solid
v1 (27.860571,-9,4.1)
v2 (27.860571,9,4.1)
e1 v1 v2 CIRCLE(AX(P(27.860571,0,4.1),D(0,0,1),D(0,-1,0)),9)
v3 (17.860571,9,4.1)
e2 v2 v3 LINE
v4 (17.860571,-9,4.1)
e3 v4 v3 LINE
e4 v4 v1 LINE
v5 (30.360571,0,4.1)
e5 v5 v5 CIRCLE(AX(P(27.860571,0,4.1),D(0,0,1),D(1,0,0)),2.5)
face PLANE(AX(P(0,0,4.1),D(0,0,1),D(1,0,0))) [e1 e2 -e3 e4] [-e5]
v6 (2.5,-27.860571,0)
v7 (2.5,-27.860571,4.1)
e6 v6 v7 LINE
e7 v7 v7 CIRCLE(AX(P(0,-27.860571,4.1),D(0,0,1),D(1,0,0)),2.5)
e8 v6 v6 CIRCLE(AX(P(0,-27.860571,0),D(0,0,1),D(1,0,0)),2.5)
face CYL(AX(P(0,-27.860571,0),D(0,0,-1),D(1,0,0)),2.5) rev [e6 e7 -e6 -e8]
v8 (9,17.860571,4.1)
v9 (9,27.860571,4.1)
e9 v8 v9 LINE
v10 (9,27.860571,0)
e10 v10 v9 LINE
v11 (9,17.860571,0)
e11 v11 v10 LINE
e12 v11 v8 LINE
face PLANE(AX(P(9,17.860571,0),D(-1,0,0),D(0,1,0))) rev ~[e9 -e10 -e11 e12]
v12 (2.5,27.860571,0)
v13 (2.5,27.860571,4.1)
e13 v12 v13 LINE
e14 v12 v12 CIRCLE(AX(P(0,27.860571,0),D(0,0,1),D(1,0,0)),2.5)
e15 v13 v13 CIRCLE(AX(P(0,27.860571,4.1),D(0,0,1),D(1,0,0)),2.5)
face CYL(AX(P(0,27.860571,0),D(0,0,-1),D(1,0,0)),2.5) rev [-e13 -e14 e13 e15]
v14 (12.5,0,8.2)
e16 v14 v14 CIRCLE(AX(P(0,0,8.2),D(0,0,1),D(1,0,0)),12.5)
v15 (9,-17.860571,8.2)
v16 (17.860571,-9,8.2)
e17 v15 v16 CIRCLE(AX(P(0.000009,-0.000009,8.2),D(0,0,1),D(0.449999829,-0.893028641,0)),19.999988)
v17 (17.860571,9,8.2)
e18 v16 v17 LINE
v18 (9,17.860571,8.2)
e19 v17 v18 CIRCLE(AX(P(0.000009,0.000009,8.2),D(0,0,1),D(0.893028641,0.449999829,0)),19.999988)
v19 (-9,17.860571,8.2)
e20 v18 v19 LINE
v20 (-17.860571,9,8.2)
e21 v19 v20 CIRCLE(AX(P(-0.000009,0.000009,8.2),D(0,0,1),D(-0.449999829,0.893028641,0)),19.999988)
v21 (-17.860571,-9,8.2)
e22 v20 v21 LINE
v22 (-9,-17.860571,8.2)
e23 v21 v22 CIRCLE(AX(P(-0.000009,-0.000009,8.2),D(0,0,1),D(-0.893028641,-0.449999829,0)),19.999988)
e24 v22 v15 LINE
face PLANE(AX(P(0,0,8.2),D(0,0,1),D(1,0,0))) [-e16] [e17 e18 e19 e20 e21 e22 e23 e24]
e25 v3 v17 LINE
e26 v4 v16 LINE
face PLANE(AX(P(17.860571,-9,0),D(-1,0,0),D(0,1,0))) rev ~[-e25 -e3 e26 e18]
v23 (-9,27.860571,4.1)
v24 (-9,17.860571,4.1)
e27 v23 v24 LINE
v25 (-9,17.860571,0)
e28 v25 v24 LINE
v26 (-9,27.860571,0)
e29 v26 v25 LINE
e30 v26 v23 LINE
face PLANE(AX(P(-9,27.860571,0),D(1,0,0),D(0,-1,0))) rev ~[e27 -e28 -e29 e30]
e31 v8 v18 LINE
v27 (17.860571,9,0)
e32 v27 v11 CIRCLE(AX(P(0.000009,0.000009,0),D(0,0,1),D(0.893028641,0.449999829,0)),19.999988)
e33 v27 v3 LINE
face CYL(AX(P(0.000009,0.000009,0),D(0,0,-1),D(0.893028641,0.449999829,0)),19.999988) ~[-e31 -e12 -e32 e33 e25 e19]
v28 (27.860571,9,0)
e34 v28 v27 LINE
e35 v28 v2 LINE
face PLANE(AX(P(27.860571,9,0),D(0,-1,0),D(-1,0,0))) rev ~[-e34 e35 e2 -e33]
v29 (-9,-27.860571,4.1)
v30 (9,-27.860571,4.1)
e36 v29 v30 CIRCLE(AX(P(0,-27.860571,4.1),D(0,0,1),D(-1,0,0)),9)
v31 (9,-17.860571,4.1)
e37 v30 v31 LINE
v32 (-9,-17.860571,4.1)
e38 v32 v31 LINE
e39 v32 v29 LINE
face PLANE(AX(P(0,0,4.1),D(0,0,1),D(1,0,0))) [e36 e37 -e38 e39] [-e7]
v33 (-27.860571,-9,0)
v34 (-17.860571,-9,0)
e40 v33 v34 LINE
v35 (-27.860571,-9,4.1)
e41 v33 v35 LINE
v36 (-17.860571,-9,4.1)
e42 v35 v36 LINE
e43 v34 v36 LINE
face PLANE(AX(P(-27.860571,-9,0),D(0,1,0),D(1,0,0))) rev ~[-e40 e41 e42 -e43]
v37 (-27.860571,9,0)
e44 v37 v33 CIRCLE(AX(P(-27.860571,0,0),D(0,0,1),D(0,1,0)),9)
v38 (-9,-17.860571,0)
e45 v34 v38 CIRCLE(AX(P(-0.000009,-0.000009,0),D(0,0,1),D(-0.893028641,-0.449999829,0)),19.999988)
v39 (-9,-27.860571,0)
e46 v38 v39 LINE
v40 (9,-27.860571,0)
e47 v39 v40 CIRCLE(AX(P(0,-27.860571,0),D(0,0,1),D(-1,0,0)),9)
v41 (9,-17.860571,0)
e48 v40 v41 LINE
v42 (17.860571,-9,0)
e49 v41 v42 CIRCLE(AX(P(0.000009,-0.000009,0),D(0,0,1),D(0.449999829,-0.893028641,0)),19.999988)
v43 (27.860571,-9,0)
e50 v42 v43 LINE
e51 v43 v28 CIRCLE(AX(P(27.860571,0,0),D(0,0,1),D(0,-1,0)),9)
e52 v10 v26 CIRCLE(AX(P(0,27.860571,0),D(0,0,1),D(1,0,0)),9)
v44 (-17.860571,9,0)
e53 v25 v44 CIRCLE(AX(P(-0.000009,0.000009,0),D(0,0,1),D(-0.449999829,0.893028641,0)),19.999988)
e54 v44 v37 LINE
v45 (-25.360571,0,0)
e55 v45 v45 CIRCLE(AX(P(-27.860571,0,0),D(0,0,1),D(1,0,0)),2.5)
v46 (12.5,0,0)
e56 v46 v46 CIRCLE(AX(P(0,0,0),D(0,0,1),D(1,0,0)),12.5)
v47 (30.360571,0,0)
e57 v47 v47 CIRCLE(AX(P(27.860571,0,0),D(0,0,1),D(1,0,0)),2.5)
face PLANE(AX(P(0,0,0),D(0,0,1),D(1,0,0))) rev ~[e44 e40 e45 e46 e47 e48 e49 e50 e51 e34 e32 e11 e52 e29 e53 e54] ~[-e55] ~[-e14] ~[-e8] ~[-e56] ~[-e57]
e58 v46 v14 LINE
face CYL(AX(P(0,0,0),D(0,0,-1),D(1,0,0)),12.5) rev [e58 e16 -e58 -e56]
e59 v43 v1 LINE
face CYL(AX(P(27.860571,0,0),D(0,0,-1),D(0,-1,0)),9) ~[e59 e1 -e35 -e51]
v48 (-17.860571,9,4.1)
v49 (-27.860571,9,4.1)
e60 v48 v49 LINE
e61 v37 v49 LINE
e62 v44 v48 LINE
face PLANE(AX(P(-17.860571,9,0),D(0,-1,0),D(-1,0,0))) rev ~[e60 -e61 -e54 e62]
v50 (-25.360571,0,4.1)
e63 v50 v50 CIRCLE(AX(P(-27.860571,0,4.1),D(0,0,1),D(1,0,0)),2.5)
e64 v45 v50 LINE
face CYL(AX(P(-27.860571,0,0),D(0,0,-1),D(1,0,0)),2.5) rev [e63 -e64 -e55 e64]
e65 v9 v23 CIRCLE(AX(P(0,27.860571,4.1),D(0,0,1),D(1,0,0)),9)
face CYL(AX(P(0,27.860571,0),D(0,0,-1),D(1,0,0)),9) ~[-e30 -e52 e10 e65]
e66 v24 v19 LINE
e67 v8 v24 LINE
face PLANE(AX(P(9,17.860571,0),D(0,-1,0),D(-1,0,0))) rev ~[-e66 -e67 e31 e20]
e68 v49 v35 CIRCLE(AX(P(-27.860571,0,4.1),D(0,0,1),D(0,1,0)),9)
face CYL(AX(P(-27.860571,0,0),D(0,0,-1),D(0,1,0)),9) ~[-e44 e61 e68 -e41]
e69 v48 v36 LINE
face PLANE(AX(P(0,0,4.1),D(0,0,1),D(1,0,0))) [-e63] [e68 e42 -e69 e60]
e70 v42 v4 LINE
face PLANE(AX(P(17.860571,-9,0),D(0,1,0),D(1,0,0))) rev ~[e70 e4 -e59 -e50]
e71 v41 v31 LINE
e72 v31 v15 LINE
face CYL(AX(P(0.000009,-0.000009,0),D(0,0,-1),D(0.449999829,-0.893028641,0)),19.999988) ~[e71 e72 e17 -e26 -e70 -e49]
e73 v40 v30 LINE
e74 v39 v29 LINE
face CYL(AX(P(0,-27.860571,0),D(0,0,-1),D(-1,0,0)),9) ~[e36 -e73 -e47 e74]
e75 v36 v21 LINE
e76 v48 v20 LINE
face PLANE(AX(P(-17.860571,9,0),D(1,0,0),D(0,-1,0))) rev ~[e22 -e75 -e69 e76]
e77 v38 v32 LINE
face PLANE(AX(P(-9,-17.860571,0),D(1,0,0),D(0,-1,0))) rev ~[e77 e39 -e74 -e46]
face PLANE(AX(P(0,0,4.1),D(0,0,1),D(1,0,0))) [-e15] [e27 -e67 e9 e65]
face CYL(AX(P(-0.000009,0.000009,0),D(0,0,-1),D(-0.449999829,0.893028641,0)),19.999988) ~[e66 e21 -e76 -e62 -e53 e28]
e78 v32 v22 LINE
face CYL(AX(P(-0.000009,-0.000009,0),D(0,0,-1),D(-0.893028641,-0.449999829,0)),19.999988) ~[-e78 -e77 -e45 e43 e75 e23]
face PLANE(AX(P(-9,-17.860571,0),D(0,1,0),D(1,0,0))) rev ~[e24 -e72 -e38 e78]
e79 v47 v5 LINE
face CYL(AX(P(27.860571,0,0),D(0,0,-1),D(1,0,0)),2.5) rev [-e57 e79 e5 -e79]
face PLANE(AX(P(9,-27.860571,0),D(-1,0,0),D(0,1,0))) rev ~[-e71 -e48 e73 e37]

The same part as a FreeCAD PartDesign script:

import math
import FreeCAD as App
import Part
import Sketcher

V = App.Vector

doc = App.newDocument("Part")
body = doc.addObject("PartDesign::Body", "Body")

sketch1 = doc.addObject("Sketcher::SketchObject", "Sketch")
body.addObject(sketch1)
sketch1.AttachmentSupport = (doc.XY_Plane, [""])
sketch1.MapMode = "FlatFace"
sketch1.addGeometry(Part.LineSegment(V(-9, -18, 0), V(9, -18, 0)), False)
sketch1.addGeometry(Part.ArcOfCircle(Part.Circle(V(0, 0, 0), V(0, 0, 1), 20), math.radians(-63), math.radians(-27)), False)
sketch1.addGeometry(Part.LineSegment(V(18, -9, 0), V(18, 9, 0)), False)
sketch1.addGeometry(Part.ArcOfCircle(Part.Circle(V(0, 0, 0), V(0, 0, 1), 20), math.radians(27), math.radians(63)), False)
sketch1.addGeometry(Part.LineSegment(V(9, 18, 0), V(-9, 18, 0)), False)
sketch1.addGeometry(Part.ArcOfCircle(Part.Circle(V(0, 0, 0), V(0, 0, 1), 20), math.radians(117), math.radians(153)), False)
sketch1.addGeometry(Part.LineSegment(V(-18, 9, 0), V(-18, -9, 0)), False)
sketch1.addGeometry(Part.ArcOfCircle(Part.Circle(V(0, 0, 0), V(0, 0, 1), 20), math.radians(-153), math.radians(-117)), False)
sketch1.addGeometry(Part.Circle(V(0, 0, 0), V(0, 0, 1), 12), False)
sketch1.addConstraint(Sketcher.Constraint("Coincident", 0, 2, 1, 1))
sketch1.addConstraint(Sketcher.Constraint("Coincident", 1, 2, 2, 1))
sketch1.addConstraint(Sketcher.Constraint("Coincident", 2, 2, 3, 1))
sketch1.addConstraint(Sketcher.Constraint("Coincident", 3, 2, 4, 1))
sketch1.addConstraint(Sketcher.Constraint("Coincident", 4, 2, 5, 1))
sketch1.addConstraint(Sketcher.Constraint("Coincident", 5, 2, 6, 1))
sketch1.addConstraint(Sketcher.Constraint("Coincident", 6, 2, 7, 1))
sketch1.addConstraint(Sketcher.Constraint("Coincident", 7, 2, 0, 1))
sketch1.addConstraint(Sketcher.Constraint("Horizontal", 0))
sketch1.addConstraint(Sketcher.Constraint("Vertical", 2))
sketch1.addConstraint(Sketcher.Constraint("Horizontal", 4))
sketch1.addConstraint(Sketcher.Constraint("Vertical", 6))
sketch1.addConstraint(Sketcher.Constraint("Coincident", 8, 3, -1, 1))
sketch1.addConstraint(Sketcher.Constraint("Equal", 1, 3))
sketch1.addConstraint(Sketcher.Constraint("Equal", 3, 5))
sketch1.addConstraint(Sketcher.Constraint("Equal", 5, 7))
sketch1.addConstraint(Sketcher.Constraint("Symmetric", 1, 3, 5, 3, -1, 1))
sketch1.addConstraint(Sketcher.Constraint("Symmetric", 3, 3, 7, 3, -1, 1))
sketch1.addConstraint(Sketcher.Constraint("Symmetric", 3, 3, 5, 3, -2))
sketch1.addConstraint(Sketcher.Constraint("Horizontal", 2, 2, 5, 2))
sketch1.addConstraint(Sketcher.Constraint("Vertical", 0, 2, 3, 2))
sketch1.addConstraint(Sketcher.Constraint("Equal", 4, 2))
sketch1.addConstraint(Sketcher.Constraint("Diameter", 8, 25.0))
sketch1.addConstraint(Sketcher.Constraint("DistanceX", 0, 1, 0, 2, 18.0))
sketch1.addConstraint(Sketcher.Constraint("Radius", 1, 19.999988))
sketch1.addConstraint(Sketcher.Constraint("DistanceY", 0, 2, -1, 1, 17.860571))
sketch1.addConstraint(Sketcher.Constraint("DistanceX", -1, 1, 1, 2, 17.860571))
pad1 = doc.addObject("PartDesign::Pad", "Pad")
body.addObject(pad1)
pad1.Profile = sketch1
pad1.Length = 8.2

sketch2 = doc.addObject("Sketcher::SketchObject", "Sketch001")
body.addObject(sketch2)
sketch2.AttachmentSupport = (doc.XY_Plane, [""])
sketch2.MapMode = "FlatFace"
sketch2.addGeometry(Part.ArcOfCircle(Part.Circle(V(0, 0, 0), V(0, 0, 1), 20), math.radians(-153), math.radians(-117)), False)
sketch2.addGeometry(Part.LineSegment(V(-9, -17.9, 0), V(-9, -27.9, 0)), False)
sketch2.addGeometry(Part.ArcOfCircle(Part.Circle(V(0, -27.9, 0), V(0, 0, 1), 9), math.radians(180), math.radians(360)), False)
sketch2.addGeometry(Part.LineSegment(V(9, -27.9, 0), V(9, -17.9, 0)), False)
sketch2.addGeometry(Part.ArcOfCircle(Part.Circle(V(0, 0, 0), V(0, 0, 1), 20), math.radians(-63), math.radians(-27)), False)
sketch2.addGeometry(Part.LineSegment(V(17.9, -9, 0), V(27.9, -9, 0)), False)
sketch2.addGeometry(Part.ArcOfCircle(Part.Circle(V(27.9, 0, 0), V(0, 0, 1), 9), math.radians(-90), math.radians(90)), False)
sketch2.addGeometry(Part.LineSegment(V(27.9, 9, 0), V(17.9, 9, 0)), False)
sketch2.addGeometry(Part.ArcOfCircle(Part.Circle(V(0, 0, 0), V(0, 0, 1), 20), math.radians(27), math.radians(63)), False)
sketch2.addGeometry(Part.LineSegment(V(9, 17.9, 0), V(9, 27.9, 0)), False)
sketch2.addGeometry(Part.ArcOfCircle(Part.Circle(V(0, 27.9, 0), V(0, 0, 1), 9), math.radians(0), math.radians(180)), False)
sketch2.addGeometry(Part.LineSegment(V(-9, 27.9, 0), V(-9, 17.9, 0)), False)
sketch2.addGeometry(Part.ArcOfCircle(Part.Circle(V(0, 0, 0), V(0, 0, 1), 20), math.radians(117), math.radians(153)), False)
sketch2.addGeometry(Part.LineSegment(V(-17.9, 9, 0), V(-27.9, 9, 0)), False)
sketch2.addGeometry(Part.ArcOfCircle(Part.Circle(V(-27.9, 0, 0), V(0, 0, 1), 9), math.radians(90), math.radians(270)), False)
sketch2.addGeometry(Part.LineSegment(V(-27.9, -9, 0), V(-17.9, -9, 0)), False)
sketch2.addGeometry(Part.Circle(V(0, -27.9, 0), V(0, 0, 1), 2.5), False)
sketch2.addGeometry(Part.Circle(V(-27.9, 0, 0), V(0, 0, 1), 2.5), False)
sketch2.addGeometry(Part.Circle(V(0, 0, 0), V(0, 0, 1), 12.5), False)
sketch2.addGeometry(Part.Circle(V(27.9, 0, 0), V(0, 0, 1), 2.5), False)
sketch2.addGeometry(Part.Circle(V(0, 27.9, 0), V(0, 0, 1), 2.5), False)
sketch2.addConstraint(Sketcher.Constraint("Coincident", 0, 2, 1, 1))
sketch2.addConstraint(Sketcher.Constraint("Tangent", 1, 2, 2, 1))
sketch2.addConstraint(Sketcher.Constraint("Tangent", 2, 2, 3, 1))
sketch2.addConstraint(Sketcher.Constraint("Coincident", 3, 2, 4, 1))
sketch2.addConstraint(Sketcher.Constraint("Coincident", 4, 2, 5, 1))
sketch2.addConstraint(Sketcher.Constraint("Tangent", 5, 2, 6, 1))
sketch2.addConstraint(Sketcher.Constraint("Tangent", 6, 2, 7, 1))
sketch2.addConstraint(Sketcher.Constraint("Coincident", 7, 2, 8, 1))
sketch2.addConstraint(Sketcher.Constraint("Coincident", 8, 2, 9, 1))
sketch2.addConstraint(Sketcher.Constraint("Tangent", 9, 2, 10, 1))
sketch2.addConstraint(Sketcher.Constraint("Tangent", 10, 2, 11, 1))
sketch2.addConstraint(Sketcher.Constraint("Coincident", 11, 2, 12, 1))
sketch2.addConstraint(Sketcher.Constraint("Coincident", 12, 2, 13, 1))
sketch2.addConstraint(Sketcher.Constraint("Tangent", 13, 2, 14, 1))
sketch2.addConstraint(Sketcher.Constraint("Tangent", 14, 2, 15, 1))
sketch2.addConstraint(Sketcher.Constraint("Coincident", 15, 2, 0, 1))
sketch2.addConstraint(Sketcher.Constraint("Vertical", 1))
sketch2.addConstraint(Sketcher.Constraint("Vertical", 3))
sketch2.addConstraint(Sketcher.Constraint("Horizontal", 5))
sketch2.addConstraint(Sketcher.Constraint("Horizontal", 7))
sketch2.addConstraint(Sketcher.Constraint("Vertical", 9))
sketch2.addConstraint(Sketcher.Constraint("Vertical", 11))
sketch2.addConstraint(Sketcher.Constraint("Horizontal", 13))
sketch2.addConstraint(Sketcher.Constraint("Horizontal", 15))
sketch2.addConstraint(Sketcher.Constraint("Coincident", 18, 3, -1, 1))
sketch2.addConstraint(Sketcher.Constraint("Coincident", 16, 3, 2, 3))
sketch2.addConstraint(Sketcher.Constraint("Coincident", 17, 3, 14, 3))
sketch2.addConstraint(Sketcher.Constraint("Coincident", 19, 3, 6, 3))
sketch2.addConstraint(Sketcher.Constraint("Coincident", 20, 3, 10, 3))
sketch2.addConstraint(Sketcher.Constraint("Equal", 0, 4))
sketch2.addConstraint(Sketcher.Constraint("Equal", 2, 6))
sketch2.addConstraint(Sketcher.Constraint("Equal", 4, 8))
sketch2.addConstraint(Sketcher.Constraint("Equal", 6, 10))
sketch2.addConstraint(Sketcher.Constraint("Equal", 8, 12))
sketch2.addConstraint(Sketcher.Constraint("Equal", 10, 14))
sketch2.addConstraint(Sketcher.Constraint("Equal", 16, 17))
sketch2.addConstraint(Sketcher.Constraint("Equal", 17, 19))
sketch2.addConstraint(Sketcher.Constraint("Equal", 19, 20))
sketch2.addConstraint(Sketcher.Constraint("Symmetric", 0, 3, 8, 3, -1, 1))
sketch2.addConstraint(Sketcher.Constraint("Symmetric", 2, 3, 10, 3, -1, 1))
sketch2.addConstraint(Sketcher.Constraint("Symmetric", 4, 3, 12, 3, -1, 1))
sketch2.addConstraint(Sketcher.Constraint("Symmetric", 6, 3, 14, 3, -1, 1))
sketch2.addConstraint(Sketcher.Constraint("Symmetric", 0, 3, 4, 3, -2))
sketch2.addConstraint(Sketcher.Constraint("PointOnObject", 2, 3, -2))
sketch2.addConstraint(Sketcher.Constraint("PointOnObject", 6, 3, -1))
sketch2.addConstraint(Sketcher.Constraint("Equal", 15, 1))
sketch2.addConstraint(Sketcher.Constraint("Diameter", 16, 5.0))
sketch2.addConstraint(Sketcher.Constraint("Diameter", 18, 25.0))
sketch2.addConstraint(Sketcher.Constraint("Radius", 2, 9.0))
sketch2.addConstraint(Sketcher.Constraint("DistanceX", 5, 1, 5, 2, 10.0))
sketch2.addConstraint(Sketcher.Constraint("Radius", 0, 19.999988))
sketch2.addConstraint(Sketcher.Constraint("DistanceY", 2, 3, -1, 1, 27.860571))
sketch2.addConstraint(Sketcher.Constraint("DistanceX", -1, 1, 6, 3, 27.860571))
pad2 = doc.addObject("PartDesign::Pad", "Pad001")
body.addObject(pad2)
pad2.Profile = sketch2
pad2.Length = 4.1

doc.recompute()
